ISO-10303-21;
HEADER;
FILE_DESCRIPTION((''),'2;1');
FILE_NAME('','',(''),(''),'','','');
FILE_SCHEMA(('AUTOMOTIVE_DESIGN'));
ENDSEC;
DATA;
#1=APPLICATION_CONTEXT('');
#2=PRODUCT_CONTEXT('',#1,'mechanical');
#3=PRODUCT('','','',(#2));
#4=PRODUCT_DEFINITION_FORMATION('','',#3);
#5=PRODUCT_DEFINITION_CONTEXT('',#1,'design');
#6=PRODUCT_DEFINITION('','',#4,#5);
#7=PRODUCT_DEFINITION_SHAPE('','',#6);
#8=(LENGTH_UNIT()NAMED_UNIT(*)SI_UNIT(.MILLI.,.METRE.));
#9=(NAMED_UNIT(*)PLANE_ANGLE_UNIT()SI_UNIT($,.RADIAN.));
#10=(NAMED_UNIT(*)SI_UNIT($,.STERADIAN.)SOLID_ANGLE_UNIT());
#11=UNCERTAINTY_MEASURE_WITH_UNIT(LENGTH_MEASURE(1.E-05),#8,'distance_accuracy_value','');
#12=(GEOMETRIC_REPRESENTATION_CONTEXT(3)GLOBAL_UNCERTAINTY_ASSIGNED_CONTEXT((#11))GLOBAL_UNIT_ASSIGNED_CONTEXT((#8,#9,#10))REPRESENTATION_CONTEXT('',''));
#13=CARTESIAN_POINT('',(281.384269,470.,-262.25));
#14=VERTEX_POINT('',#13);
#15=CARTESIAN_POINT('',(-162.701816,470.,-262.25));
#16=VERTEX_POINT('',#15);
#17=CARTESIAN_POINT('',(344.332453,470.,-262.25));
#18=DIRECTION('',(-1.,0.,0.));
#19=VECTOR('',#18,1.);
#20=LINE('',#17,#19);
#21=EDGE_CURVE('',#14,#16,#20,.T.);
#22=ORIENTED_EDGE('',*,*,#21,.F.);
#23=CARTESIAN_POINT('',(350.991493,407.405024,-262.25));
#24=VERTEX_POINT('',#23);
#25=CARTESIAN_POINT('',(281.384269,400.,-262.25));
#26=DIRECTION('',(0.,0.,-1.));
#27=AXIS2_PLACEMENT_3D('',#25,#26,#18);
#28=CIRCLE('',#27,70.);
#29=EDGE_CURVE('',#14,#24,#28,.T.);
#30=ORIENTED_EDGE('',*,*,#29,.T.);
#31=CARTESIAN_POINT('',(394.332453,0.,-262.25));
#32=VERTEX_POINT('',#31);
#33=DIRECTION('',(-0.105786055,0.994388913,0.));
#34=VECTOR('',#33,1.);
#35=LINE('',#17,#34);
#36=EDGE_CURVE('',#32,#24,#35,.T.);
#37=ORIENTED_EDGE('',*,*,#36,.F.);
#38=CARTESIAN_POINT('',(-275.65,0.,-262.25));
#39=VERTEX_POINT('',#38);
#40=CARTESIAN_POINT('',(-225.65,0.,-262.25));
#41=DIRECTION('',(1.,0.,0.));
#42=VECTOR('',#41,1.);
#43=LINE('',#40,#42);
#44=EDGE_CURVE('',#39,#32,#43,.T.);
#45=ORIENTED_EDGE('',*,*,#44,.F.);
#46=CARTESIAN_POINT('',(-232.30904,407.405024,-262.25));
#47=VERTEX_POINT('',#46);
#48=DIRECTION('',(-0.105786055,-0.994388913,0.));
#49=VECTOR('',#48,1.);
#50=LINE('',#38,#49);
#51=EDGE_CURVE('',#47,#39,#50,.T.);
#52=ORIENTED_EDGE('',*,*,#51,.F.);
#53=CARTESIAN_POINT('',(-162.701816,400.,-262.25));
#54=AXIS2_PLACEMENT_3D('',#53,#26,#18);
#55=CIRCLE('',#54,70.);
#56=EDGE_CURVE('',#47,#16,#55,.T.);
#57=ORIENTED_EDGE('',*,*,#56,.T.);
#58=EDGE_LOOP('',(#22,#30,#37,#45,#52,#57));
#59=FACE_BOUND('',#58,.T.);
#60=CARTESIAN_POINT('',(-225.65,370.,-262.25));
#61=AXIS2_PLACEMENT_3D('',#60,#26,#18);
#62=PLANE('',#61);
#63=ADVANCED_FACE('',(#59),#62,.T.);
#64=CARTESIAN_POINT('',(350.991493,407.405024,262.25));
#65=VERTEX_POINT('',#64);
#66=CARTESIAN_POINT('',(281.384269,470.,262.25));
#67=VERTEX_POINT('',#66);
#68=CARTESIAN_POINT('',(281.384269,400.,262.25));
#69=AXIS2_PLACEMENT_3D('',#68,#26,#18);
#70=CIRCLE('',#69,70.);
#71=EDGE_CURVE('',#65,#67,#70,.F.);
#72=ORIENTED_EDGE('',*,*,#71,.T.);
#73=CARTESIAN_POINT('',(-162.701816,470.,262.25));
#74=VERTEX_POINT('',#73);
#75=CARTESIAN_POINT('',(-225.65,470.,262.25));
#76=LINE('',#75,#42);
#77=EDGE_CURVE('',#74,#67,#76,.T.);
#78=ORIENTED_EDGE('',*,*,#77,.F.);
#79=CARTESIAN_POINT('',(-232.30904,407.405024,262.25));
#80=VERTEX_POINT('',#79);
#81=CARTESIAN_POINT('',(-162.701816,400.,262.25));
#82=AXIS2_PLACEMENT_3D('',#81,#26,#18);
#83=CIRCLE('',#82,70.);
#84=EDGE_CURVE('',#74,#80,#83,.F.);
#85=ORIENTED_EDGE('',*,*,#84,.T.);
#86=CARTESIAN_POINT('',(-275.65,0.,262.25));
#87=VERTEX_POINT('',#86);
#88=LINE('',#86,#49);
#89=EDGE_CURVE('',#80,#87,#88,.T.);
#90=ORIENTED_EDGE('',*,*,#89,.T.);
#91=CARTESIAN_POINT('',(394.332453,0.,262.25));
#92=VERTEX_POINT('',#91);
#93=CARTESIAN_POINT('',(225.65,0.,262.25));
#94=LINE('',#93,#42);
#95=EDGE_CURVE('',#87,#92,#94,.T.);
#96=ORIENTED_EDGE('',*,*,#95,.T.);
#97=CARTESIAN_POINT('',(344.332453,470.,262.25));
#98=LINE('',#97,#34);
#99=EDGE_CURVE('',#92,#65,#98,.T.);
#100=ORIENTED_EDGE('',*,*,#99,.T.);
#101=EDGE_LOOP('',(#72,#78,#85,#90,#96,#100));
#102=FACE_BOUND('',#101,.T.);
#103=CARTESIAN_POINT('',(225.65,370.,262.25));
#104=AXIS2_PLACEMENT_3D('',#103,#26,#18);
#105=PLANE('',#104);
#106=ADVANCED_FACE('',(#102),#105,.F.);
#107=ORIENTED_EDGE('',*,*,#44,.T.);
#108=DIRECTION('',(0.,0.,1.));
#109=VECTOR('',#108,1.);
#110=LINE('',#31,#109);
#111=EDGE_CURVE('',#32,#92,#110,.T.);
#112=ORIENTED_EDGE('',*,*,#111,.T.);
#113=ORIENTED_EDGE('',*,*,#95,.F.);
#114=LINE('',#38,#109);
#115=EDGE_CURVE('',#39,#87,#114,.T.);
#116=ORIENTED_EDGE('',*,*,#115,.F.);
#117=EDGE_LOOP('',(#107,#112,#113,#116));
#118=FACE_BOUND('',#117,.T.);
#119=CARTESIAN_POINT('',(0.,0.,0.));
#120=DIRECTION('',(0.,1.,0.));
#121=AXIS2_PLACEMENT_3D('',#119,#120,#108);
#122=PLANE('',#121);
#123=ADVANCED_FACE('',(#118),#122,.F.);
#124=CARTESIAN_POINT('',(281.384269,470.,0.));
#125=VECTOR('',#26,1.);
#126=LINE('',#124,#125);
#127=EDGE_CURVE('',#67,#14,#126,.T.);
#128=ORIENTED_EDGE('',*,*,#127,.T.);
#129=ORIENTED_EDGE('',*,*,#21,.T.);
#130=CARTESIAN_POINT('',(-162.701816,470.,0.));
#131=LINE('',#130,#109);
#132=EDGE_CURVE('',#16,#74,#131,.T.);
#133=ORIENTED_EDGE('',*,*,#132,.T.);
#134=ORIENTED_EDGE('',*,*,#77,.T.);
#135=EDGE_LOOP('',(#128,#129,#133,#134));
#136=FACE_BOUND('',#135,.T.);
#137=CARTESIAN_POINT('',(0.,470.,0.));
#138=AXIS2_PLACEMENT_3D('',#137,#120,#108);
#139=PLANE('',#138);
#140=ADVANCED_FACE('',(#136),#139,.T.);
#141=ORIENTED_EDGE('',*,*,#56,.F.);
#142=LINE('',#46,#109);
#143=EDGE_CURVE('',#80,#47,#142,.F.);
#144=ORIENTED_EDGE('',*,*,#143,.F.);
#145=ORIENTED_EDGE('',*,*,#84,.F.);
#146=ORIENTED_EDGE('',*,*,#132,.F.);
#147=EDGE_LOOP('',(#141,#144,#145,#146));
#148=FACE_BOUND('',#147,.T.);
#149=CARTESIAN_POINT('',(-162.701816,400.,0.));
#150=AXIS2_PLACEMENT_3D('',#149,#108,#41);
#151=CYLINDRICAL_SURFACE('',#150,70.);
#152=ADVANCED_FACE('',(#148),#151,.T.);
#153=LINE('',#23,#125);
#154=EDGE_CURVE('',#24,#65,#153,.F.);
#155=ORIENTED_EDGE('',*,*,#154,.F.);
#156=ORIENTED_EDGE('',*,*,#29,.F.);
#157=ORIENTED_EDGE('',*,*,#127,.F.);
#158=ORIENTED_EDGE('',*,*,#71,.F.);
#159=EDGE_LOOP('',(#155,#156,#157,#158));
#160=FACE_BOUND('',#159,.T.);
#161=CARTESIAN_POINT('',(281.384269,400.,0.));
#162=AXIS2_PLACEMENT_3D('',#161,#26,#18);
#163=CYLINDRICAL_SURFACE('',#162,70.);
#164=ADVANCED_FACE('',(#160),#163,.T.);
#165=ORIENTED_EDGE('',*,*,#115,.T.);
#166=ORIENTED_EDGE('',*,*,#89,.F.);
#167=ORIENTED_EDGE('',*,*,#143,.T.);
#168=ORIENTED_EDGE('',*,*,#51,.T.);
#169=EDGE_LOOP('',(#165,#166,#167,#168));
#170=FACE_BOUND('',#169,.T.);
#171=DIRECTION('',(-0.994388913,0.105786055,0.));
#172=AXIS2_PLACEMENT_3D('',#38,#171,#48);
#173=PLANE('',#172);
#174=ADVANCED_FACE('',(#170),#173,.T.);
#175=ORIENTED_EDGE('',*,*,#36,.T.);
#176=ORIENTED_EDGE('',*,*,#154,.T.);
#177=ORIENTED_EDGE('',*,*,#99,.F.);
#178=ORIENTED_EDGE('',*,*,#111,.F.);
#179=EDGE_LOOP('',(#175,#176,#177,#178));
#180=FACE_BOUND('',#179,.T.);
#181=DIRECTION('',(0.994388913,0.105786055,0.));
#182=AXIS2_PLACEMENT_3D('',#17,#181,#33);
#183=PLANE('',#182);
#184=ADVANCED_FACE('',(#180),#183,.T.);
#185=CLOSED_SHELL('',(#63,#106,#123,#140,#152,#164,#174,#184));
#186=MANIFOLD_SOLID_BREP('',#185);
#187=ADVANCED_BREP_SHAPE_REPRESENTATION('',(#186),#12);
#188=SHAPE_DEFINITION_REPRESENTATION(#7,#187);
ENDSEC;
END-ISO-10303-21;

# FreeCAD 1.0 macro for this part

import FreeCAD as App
import Part
import Sketcher


def edges_at(feature, points):
    """Names of the edges that pass closest to the given points."""
    edges = feature.Shape.Edges
    near = lambda p: min(range(len(edges)), key=lambda i: edges[i].distToShape(Part.Vertex(*p))[0])
    return sorted({f"Edge{near(p) + 1}" for p in points})


def add_polygon(sketch, points):
    """Adds a closed chain of lines whose ends are joined by coincident constraints."""
    first, n = sketch.GeometryCount, len(points)
    for a, b in zip(points, points[1:] + points[:1]):
        sketch.addGeometry(Part.LineSegment(App.Vector(*a, 0), App.Vector(*b, 0)), False)
    for i in range(n):
        sketch.addConstraint(Sketcher.Constraint("Coincident", first + i, 2, first + (i + 1) % n, 1))

doc = App.newDocument("Part")
body = doc.addObject("PartDesign::Body", "Body")

sketch1 = body.newObject("Sketcher::SketchObject", "Sketch")
sketch1.AttachmentSupport = (doc.getObject("XZ_Plane"), [""])
sketch1.MapMode = "FlatFace"
add_polygon(sketch1, [(344.332453, 262.25), (344.332453, -262.25), (-225.65, -262.25), (-225.65, 262.25)])
sketch1.addConstraint(Sketcher.Constraint("Vertical", 0))
sketch1.addConstraint(Sketcher.Constraint("Horizontal", 1))
sketch1.addConstraint(Sketcher.Constraint("Vertical", 2))
sketch1.addConstraint(Sketcher.Constraint("Horizontal", 3))
sketch1.addConstraint(Sketcher.Constraint("DistanceY", 0, 2, 0, 1, 524.5))
sketch1.addConstraint(Sketcher.Constraint("DistanceY", 0, 2, -1, 1, 262.25))
sketch1.addConstraint(Sketcher.Constraint("DistanceX", 1, 2, -1, 1, 225.65))
sketch1.addConstraint(Sketcher.Constraint("DistanceX", 1, 2, 1, 1, 569.982453))
pad1 = body.newObject("PartDesign::Pad", "Pad")
pad1.Profile = sketch1
pad1.Length = 370
pad1.Reversed = True

sketch2 = body.newObject("Sketcher::SketchObject", "Sketch001")
sketch2.AttachmentSupport = (doc.getObject("XZ_Plane"), [""])
sketch2.MapMode = "FlatFace"
sketch2.AttachmentOffset = App.Placement(App.Vector(0, 0, -370), App.Rotation())
add_polygon(sketch2, [(-225.65, -262.25), (-225.65, 262.25), (344.332453, 262.25), (344.332453, -262.25)])
sketch2.addConstraint(Sketcher.Constraint("Vertical", 0))
sketch2.addConstraint(Sketcher.Constraint("Horizontal", 1))
sketch2.addConstraint(Sketcher.Constraint("Vertical", 2))
sketch2.addConstraint(Sketcher.Constraint("Horizontal", 3))
sketch2.addConstraint(Sketcher.Constraint("DistanceY", 0, 1, 0, 2, 524.5))
sketch2.addConstraint(Sketcher.Constraint("DistanceX", 0, 2, -1, 1, 225.65))
sketch2.addConstraint(Sketcher.Constraint("DistanceY", -1, 1, 0, 2, 262.25))
sketch2.addConstraint(Sketcher.Constraint("DistanceX", 1, 1, 1, 2, 569.982453))
pad2 = body.newObject("PartDesign::Pad", "Pad001")
pad2.Profile = sketch2
pad2.Length = 100
pad2.Reversed = True

sketch3 = body.newObject("Sketcher::SketchObject", "Sketch002")
sketch3.AttachmentSupport = (doc.getObject("XY_Plane"), [""])
sketch3.MapMode = "FlatFace"
sketch3.AttachmentOffset = App.Placement(App.Vector(0, 0, 262.25), App.Rotation())
add_polygon(sketch3, [(-275.65, 0), (394.332453, 0), (344.332453, 470), (-225.65, 470)])
sketch3.addConstraint(Sketcher.Constraint("Horizontal", 0))
sketch3.addConstraint(Sketcher.Constraint("Horizontal", 2))
sketch3.addConstraint(Sketcher.Constraint("PointOnObject", 0, 2, -1))
sketch3.addConstraint(Sketcher.Constraint("Equal", 1, 3))
sketch3.addConstraint(Sketcher.Constraint("DistanceY", -1, 1, 1, 2, 470.0))
sketch3.addConstraint(Sketcher.Constraint("DistanceX", 1, 2, 0, 2, 50.0))
sketch3.addConstraint(Sketcher.Constraint("DistanceX", 2, 2, -1, 1, 225.65))
sketch3.addConstraint(Sketcher.Constraint("DistanceX", 0, 1, 0, 2, 669.982453))
pad3 = body.newObject("PartDesign::Pad", "Pad002")
pad3.Profile = sketch3
pad3.Type = "UpToLast"
pad3.Reversed = True
doc.recompute()

fillet = body.newObject("PartDesign::Fillet", "Fillet")
fillet.Base = (pad3, edges_at(pad3, [(-225.65, 470, 0), (344.332, 470, 0)]))
fillet.Radius = 70

doc.recompute()
